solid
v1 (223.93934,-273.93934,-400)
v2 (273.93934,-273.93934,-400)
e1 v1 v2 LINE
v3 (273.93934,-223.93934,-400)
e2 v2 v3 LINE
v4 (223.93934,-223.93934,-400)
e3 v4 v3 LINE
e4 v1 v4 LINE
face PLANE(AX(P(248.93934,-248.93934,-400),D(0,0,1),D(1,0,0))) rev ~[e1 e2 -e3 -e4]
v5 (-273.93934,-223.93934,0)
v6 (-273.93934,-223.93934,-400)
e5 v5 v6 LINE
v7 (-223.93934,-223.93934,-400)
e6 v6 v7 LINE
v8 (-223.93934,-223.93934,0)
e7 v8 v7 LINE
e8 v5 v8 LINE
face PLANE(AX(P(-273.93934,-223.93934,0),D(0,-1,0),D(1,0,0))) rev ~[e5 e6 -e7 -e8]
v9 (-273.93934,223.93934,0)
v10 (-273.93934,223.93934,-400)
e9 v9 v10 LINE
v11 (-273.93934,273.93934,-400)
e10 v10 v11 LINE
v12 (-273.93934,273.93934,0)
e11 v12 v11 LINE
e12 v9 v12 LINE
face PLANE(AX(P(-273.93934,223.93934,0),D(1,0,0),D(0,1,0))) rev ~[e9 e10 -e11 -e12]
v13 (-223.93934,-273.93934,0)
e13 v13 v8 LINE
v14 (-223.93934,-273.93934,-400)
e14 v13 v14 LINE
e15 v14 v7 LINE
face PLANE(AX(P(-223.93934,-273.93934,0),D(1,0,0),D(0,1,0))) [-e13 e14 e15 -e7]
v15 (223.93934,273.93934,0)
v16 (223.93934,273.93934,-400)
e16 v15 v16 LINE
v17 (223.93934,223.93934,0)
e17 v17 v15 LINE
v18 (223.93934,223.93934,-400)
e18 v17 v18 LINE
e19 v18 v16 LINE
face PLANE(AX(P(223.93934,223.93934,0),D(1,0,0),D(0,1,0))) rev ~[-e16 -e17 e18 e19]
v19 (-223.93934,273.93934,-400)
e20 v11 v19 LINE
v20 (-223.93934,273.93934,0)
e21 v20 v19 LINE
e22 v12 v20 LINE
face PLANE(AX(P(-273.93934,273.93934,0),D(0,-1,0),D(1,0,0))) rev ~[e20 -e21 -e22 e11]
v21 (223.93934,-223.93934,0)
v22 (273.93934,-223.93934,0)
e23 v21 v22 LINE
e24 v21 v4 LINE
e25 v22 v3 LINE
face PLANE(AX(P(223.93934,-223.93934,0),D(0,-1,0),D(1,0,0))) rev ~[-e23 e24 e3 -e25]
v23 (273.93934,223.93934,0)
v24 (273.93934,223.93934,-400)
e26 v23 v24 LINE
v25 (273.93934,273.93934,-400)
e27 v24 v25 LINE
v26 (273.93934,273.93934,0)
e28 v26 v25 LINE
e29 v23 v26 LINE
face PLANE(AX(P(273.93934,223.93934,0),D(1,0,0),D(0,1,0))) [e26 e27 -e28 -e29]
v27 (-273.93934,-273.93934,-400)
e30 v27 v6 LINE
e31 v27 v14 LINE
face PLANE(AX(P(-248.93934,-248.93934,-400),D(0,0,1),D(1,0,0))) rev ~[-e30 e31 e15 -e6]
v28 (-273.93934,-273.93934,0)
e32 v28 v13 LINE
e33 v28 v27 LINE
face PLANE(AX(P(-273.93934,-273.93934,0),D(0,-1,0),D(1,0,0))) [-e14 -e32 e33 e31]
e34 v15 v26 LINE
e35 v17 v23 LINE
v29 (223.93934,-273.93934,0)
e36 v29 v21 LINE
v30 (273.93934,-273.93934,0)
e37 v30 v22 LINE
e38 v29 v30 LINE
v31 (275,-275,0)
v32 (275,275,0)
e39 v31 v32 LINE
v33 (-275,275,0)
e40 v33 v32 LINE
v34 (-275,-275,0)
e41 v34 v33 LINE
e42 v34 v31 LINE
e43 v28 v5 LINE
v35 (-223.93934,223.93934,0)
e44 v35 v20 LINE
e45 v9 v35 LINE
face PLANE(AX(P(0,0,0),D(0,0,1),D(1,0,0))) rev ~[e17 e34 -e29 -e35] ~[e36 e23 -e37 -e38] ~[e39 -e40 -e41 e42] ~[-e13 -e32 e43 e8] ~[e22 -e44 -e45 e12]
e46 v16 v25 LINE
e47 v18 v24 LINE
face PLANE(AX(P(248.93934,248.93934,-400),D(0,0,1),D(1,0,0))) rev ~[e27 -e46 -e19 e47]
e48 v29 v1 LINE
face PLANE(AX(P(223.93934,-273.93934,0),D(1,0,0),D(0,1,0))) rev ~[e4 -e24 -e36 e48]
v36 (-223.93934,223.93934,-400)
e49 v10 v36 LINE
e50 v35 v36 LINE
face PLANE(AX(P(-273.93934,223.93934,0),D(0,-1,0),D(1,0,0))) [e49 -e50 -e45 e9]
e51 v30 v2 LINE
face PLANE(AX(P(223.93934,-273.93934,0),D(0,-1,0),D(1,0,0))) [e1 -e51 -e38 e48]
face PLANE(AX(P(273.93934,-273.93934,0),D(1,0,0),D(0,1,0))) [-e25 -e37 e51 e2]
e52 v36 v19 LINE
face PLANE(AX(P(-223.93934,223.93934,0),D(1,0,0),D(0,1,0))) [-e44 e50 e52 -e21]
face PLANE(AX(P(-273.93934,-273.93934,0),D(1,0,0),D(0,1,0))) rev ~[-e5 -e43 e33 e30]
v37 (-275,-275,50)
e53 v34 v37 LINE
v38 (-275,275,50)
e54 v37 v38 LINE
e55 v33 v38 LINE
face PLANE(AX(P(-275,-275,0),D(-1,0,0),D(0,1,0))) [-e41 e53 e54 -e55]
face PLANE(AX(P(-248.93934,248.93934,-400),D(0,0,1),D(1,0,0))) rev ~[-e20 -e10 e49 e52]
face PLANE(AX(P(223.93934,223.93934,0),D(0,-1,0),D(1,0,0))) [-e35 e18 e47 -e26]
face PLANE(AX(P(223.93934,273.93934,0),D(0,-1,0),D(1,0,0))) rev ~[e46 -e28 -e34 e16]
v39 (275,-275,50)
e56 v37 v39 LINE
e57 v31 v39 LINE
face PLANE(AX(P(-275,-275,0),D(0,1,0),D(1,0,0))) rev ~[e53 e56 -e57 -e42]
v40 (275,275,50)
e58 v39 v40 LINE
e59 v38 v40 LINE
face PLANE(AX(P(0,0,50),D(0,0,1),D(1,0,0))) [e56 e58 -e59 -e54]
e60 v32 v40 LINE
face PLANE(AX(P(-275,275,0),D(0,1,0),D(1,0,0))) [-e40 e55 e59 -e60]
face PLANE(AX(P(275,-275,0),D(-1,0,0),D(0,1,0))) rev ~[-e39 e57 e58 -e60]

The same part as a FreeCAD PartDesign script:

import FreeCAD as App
import Part
import Sketcher
from FreeCAD import Vector


def add_polygon(sketch, points):
    """Adds a closed chain of lines whose ends are joined by coincident constraints."""
    first, n = sketch.GeometryCount, len(points)
    for a, b in zip(points, points[1:] + points[:1]):
        sketch.addGeometry(Part.LineSegment(App.Vector(*a, 0), App.Vector(*b, 0)), False)
    for i in range(n):
        sketch.addConstraint(Sketcher.Constraint("Coincident", first + i, 2, first + (i + 1) % n, 1))

doc = App.newDocument("Part")
body = doc.addObject("PartDesign::Body", "Body")

# Sketch on XY plane
sketch1 = body.newObject("Sketcher::SketchObject", "Sketch")
sketch1.AttachmentSupport = (doc.getObject("XY_Plane"), [""])
sketch1.MapMode = "FlatFace"
add_polygon(sketch1, [(-275, 275), (-275, -275), (275, -275), (275, 275)])  # lines 0-3
sketch1.addConstraint([
    Sketcher.Constraint("Vertical", 0),
    Sketcher.Constraint("Horizontal", 1),
    Sketcher.Constraint("Vertical", 2),
    Sketcher.Constraint("Horizontal", 3),
    Sketcher.Constraint("Symmetric", 0, 2, 2, 2, -1, 1),
    Sketcher.Constraint("Equal", 3, 0),
    Sketcher.Constraint("DistanceX", 1, 1, 1, 2, 550.0),
])
pad1 = body.newObject("PartDesign::Pad", "Pad")
pad1.Profile = sketch1
pad1.Length = 50

# Sketch on XY plane
sketch2 = body.newObject("Sketcher::SketchObject", "Sketch001")
sketch2.AttachmentSupport = (doc.getObject("XY_Plane"), [""])
sketch2.MapMode = "FlatFace"
add_polygon(sketch2, [(-274, -224), (-274, -274), (-224, -274), (-224, -224)])  # lines 0-3
add_polygon(sketch2, [(224, -224), (224, -274), (274, -274), (274, -224)])  # lines 4-7
add_polygon(sketch2, [(224, 274), (224, 224), (274, 224), (274, 274)])  # lines 8-11
add_polygon(sketch2, [(-274, 274), (-274, 224), (-224, 224), (-224, 274)])  # lines 12-15
sketch2.addConstraint([
    Sketcher.Constraint("Vertical", 0),
    Sketcher.Constraint("Horizontal", 1),
    Sketcher.Constraint("Vertical", 2),
    Sketcher.Constraint("Horizontal", 3),
    Sketcher.Constraint("Vertical", 4),
    Sketcher.Constraint("Horizontal", 5),
    Sketcher.Constraint("Vertical", 6),
    Sketcher.Constraint("Horizontal", 7),
    Sketcher.Constraint("Vertical", 8),
    Sketcher.Constraint("Horizontal", 9),
    Sketcher.Constraint("Vertical", 10),
    Sketcher.Constraint("Horizontal", 11),
    Sketcher.Constraint("Vertical", 12),
    Sketcher.Constraint("Horizontal", 13),
    Sketcher.Constraint("Vertical", 14),
    Sketcher.Constraint("Horizontal", 15),
    Sketcher.Constraint("Symmetric", 2, 2, 8, 2, -1, 1),
    Sketcher.Constraint("Symmetric", 0, 2, 10, 2, -1, 1),
    Sketcher.Constraint("Symmetric", 6, 2, 12, 2, -1, 1),
    Sketcher.Constraint("Symmetric", 4, 2, 14, 2, -1, 1),
    Sketcher.Constraint("Symmetric", 1, 2, 4, 2, -2),
    Sketcher.Constraint("Symmetric", 3, 2, 6, 2, -2),
    Sketcher.Constraint("Equal", 15, 0),
    Sketcher.Constraint("DistanceX", 1, 1, 1, 2, 50.0),
    Sketcher.Constraint("DistanceX", 0, 2, -1, 1, 273.93934),
    Sketcher.Constraint("DistanceY", 0, 2, -1, 1, 273.93934),
])
pad2 = body.newObject("PartDesign::Pad", "Pad001")
pad2.Profile = sketch2
pad2.Length = 400
pad2.Reversed = True

doc.recompute()
